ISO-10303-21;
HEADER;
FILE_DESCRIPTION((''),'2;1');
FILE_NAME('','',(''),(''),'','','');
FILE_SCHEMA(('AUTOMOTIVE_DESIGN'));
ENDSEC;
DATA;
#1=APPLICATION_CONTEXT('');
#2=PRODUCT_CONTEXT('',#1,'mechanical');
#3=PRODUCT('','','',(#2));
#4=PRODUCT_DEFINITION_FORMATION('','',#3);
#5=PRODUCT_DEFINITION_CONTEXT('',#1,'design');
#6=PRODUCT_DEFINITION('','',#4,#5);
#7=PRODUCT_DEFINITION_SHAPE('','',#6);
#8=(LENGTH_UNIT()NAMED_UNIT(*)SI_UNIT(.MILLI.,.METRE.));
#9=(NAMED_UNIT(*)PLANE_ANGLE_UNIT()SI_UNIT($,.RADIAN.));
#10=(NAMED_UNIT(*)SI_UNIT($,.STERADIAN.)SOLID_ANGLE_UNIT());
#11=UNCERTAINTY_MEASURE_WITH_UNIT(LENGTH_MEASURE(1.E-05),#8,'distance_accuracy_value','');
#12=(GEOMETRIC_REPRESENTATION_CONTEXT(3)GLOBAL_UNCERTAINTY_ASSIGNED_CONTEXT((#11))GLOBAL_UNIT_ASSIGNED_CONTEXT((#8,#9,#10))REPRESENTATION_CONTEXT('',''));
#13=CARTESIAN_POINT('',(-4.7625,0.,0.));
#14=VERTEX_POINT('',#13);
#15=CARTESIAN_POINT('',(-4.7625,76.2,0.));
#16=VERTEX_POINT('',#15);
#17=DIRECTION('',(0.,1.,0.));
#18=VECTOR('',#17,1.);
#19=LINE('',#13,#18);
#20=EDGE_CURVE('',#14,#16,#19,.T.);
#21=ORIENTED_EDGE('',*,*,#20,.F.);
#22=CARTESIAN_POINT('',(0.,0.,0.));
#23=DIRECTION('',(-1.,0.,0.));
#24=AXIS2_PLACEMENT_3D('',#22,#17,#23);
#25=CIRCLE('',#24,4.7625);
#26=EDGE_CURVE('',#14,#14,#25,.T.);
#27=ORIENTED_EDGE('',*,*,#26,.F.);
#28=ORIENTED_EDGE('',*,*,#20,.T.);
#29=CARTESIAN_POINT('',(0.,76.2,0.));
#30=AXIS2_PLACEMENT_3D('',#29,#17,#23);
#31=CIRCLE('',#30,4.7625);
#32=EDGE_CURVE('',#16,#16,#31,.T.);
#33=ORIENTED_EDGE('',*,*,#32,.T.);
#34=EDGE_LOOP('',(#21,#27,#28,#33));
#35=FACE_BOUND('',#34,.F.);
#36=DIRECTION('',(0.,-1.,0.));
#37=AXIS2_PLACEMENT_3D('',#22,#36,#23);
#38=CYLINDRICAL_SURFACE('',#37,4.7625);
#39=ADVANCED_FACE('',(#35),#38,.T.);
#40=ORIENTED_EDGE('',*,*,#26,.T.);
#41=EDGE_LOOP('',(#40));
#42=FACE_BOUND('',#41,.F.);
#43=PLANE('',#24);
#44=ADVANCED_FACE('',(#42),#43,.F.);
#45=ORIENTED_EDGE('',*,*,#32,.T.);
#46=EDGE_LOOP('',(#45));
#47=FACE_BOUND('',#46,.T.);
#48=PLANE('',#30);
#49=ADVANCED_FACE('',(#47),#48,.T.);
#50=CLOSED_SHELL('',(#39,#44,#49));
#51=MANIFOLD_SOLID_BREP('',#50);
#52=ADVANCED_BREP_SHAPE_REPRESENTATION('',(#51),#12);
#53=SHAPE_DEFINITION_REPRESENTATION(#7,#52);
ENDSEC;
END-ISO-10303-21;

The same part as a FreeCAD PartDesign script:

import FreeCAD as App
import Part
import Sketcher

V = App.Vector
Q = App.Units.Quantity

doc = App.newDocument("Part")
body = doc.addObject("PartDesign::Body", "Body")

# Sketch on XZ plane
sketch1 = body.newObject("Sketcher::SketchObject", "Sketch")
sketch1.AttachmentSupport = (doc.getObject("XZ_Plane"), [""])
sketch1.MapMode = "FlatFace"
sketch1.addGeometry(Part.Circle(V(0, 0, 0), V(0, 0, 1), 4.8), False)
sketch1.addConstraint(Sketcher.Constraint("Coincident", 0, 3, -1, 1))
sketch1.addConstraint(Sketcher.Constraint("Diameter", 0, Q("0.375 in")))
pad1 = body.newObject("PartDesign::Pad", "Pad")
pad1.Profile = sketch1
pad1.Length = Q("3 in")
pad1.Reversed = True

doc.recompute()
